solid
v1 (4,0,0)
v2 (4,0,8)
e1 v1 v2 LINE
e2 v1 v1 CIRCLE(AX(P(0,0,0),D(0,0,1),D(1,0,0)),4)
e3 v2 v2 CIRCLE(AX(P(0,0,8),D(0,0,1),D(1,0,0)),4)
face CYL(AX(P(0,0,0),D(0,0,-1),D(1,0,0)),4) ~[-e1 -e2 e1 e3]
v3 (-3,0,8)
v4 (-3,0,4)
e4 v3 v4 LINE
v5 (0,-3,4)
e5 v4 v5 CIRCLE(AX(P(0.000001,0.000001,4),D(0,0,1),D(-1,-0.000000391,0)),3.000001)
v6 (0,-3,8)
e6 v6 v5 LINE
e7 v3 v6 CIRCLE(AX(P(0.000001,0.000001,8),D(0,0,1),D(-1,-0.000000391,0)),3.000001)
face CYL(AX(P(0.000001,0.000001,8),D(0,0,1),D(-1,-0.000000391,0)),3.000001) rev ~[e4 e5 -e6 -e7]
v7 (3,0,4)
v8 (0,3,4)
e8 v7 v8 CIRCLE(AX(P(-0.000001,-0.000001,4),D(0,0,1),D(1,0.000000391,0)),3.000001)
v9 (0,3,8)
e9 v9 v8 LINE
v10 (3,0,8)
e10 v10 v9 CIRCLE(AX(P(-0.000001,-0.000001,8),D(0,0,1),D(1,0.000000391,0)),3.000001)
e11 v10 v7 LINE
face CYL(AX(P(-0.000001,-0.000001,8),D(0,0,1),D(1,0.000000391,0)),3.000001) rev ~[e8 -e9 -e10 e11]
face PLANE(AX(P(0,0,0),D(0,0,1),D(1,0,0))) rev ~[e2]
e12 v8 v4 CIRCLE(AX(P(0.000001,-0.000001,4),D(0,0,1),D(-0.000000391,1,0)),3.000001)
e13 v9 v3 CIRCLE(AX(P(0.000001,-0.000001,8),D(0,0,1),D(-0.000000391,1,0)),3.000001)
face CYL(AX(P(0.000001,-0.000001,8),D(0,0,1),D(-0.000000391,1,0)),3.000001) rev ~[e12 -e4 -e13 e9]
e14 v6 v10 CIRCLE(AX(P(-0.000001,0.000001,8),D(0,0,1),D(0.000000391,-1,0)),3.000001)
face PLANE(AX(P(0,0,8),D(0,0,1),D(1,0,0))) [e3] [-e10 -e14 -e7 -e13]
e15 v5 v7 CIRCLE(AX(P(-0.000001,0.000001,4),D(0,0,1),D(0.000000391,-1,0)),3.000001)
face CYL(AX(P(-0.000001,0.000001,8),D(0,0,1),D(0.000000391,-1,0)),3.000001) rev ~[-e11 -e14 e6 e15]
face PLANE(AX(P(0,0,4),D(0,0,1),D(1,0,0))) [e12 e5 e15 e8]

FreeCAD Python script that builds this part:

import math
import FreeCAD as App
import Part
import Sketcher
Q = App.Units.Quantity

doc = App.newDocument("Part")
params = doc.addObject("Spreadsheet::Sheet", "Params")
for row, (alias, value) in enumerate([
    ("sketch1_diameter", "8 mm"),
    ("pad1_length", "8 mm"),
    ("sketch2_radius", "3.000001 mm"),
    ("pocket1_length", "4 mm"),
], start=1):
    params.set(f"A{row}", alias)
    params.set(f"B{row}", "=" + value)
    params.setAlias(f"B{row}", alias)

body = doc.addObject("PartDesign::Body", "Body")

# Sketch on XY plane
sketch1 = doc.addObject("Sketcher::SketchObject", "Sketch")
body.addObject(sketch1)
sketch1.AttachmentSupport = (doc.XY_Plane, [""])
sketch1.MapMode = "FlatFace"
sketch1.addGeometry(Part.Circle(App.Vector(0, 0, 0), App.Vector(0, 0, 1), 4), False)
sketch1.addConstraint([
    Sketcher.Constraint("Coincident", 0, 3, -1, 1),
    Sketcher.Constraint("Diameter", 0, Q("8 mm")),
])
sketch1.setExpression("Constraints[1]", "Params.sketch1_diameter")
pad1 = doc.addObject("PartDesign::Pad", "Pad")
body.addObject(pad1)
pad1.Profile = sketch1
pad1.setExpression("Length", "Params.pad1_length")

# Sketch on XY plane
sketch2 = doc.addObject("Sketcher::SketchObject", "Sketch001")
body.addObject(sketch2)
sketch2.AttachmentSupport = (doc.XY_Plane, [""])
sketch2.MapMode = "FlatFace"
sketch2.AttachmentOffset = App.Placement(App.Vector(0, 0, 8), App.Rotation())
sketch2.addGeometry([
    Part.ArcOfCircle(Part.Circle(App.Vector(0, 0, 0), App.Vector(0, 0, 1), 3), math.radians(0), math.radians(90)),
    Part.ArcOfCircle(Part.Circle(App.Vector(0, 0, 0), App.Vector(0, 0, 1), 3), math.radians(90), math.radians(180)),
    Part.ArcOfCircle(Part.Circle(App.Vector(0, 0, 0), App.Vector(0, 0, 1), 3), math.radians(-180), math.radians(-90)),
    Part.ArcOfCircle(Part.Circle(App.Vector(0, 0, 0), App.Vector(0, 0, 1), 3), math.radians(-90), math.radians(0)),
], False)
sketch2.addConstraint([
    Sketcher.Constraint("Tangent", 0, 2, 1, 1),
    Sketcher.Constraint("Tangent", 1, 2, 2, 1),
    Sketcher.Constraint("Tangent", 2, 2, 3, 1),
    Sketcher.Constraint("Tangent", 3, 2, 0, 1),
    Sketcher.Constraint("Coincident", 0, 3, -1, 1),
    Sketcher.Constraint("Equal", 0, 1),
    Sketcher.Constraint("PointOnObject", 0, 2, -2),
    Sketcher.Constraint("PointOnObject", 1, 2, -1),
    Sketcher.Constraint("PointOnObject", 2, 2, -2),
    Sketcher.Constraint("PointOnObject", 3, 2, -1),
    Sketcher.Constraint("Radius", 0, Q("3.000001 mm")),
])
sketch2.setExpression("Constraints[10]", "Params.sketch2_radius")
pocket1 = doc.addObject("PartDesign::Pocket", "Pocket")
body.addObject(pocket1)
pocket1.Profile = sketch2
pocket1.setExpression("Length", "Params.pocket1_length")

doc.recompute()
